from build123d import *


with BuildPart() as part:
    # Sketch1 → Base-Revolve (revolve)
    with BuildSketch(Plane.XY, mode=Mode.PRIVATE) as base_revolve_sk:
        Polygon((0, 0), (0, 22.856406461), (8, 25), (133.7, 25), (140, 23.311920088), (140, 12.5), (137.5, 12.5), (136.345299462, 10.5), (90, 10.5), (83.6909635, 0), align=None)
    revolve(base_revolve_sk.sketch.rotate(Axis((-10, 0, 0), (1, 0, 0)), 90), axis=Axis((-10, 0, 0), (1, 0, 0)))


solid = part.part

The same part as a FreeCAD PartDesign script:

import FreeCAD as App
import Part
import Sketcher

V = App.Vector
Q = App.Units.Quantity

doc = App.newDocument("Part")
body = doc.addObject("PartDesign::Body", "Body")

sketch1 = body.newObject("Sketcher::SketchObject", "Sketch")
sketch1.AttachmentSupport = (doc.getObject("XY_Plane"), [""])
sketch1.MapMode = "FlatFace"
sketch1.addGeometry(Part.LineSegment(V(0, 22.9, 0), V(0, 0, 0)), False)
sketch1.addGeometry(Part.LineSegment(V(0, 0, 0), V(83.7, 0, 0)), False)
sketch1.addGeometry(Part.LineSegment(V(83.7, 0, 0), V(90, 10.5, 0)), False)
sketch1.addGeometry(Part.LineSegment(V(90, 10.5, 0), V(136.3, 10.5, 0)), False)
sketch1.addGeometry(Part.LineSegment(V(136.3, 10.5, 0), V(137.5, 12.5, 0)), False)
sketch1.addGeometry(Part.LineSegment(V(137.5, 12.5, 0), V(140, 12.5, 0)), False)
sketch1.addGeometry(Part.LineSegment(V(140, 12.5, 0), V(140, 23.3, 0)), False)
sketch1.addGeometry(Part.LineSegment(V(140, 23.3, 0), V(133.7, 25, 0)), False)
sketch1.addGeometry(Part.LineSegment(V(133.7, 25, 0), V(8, 25, 0)), False)
sketch1.addGeometry(Part.LineSegment(V(8, 25, 0), V(0, 22.9, 0)), False)
sketch1.addConstraint(Sketcher.Constraint("Coincident", 0, 2, 1, 1))
sketch1.addConstraint(Sketcher.Constraint("Coincident", 1, 2, 2, 1))
sketch1.addConstraint(Sketcher.Constraint("Coincident", 2, 2, 3, 1))
sketch1.addConstraint(Sketcher.Constraint("Coincident", 3, 2, 4, 1))
sketch1.addConstraint(Sketcher.Constraint("Coincident", 4, 2, 5, 1))
sketch1.addConstraint(Sketcher.Constraint("Coincident", 5, 2, 6, 1))
sketch1.addConstraint(Sketcher.Constraint("Coincident", 6, 2, 7, 1))
sketch1.addConstraint(Sketcher.Constraint("Coincident", 7, 2, 8, 1))
sketch1.addConstraint(Sketcher.Constraint("Coincident", 8, 2, 9, 1))
sketch1.addConstraint(Sketcher.Constraint("Coincident", 9, 2, 0, 1))
sketch1.addConstraint(Sketcher.Constraint("Vertical", 0))
sketch1.addConstraint(Sketcher.Constraint("Horizontal", 1))
sketch1.addConstraint(Sketcher.Constraint("Horizontal", 3))
sketch1.addConstraint(Sketcher.Constraint("Horizontal", 5))
sketch1.addConstraint(Sketcher.Constraint("Vertical", 6))
sketch1.addConstraint(Sketcher.Constraint("Horizontal", 8))
sketch1.addConstraint(Sketcher.Constraint("Coincident", 0, 2, -1, 1))
sketch1.addConstraint(Sketcher.Constraint("Angle", 2, Q("59 deg")))
sketch1.addConstraint(Sketcher.Constraint("Angle", 4, Q("60 deg")))
sketch1.addConstraint(Sketcher.Constraint("Angle", 7, Q("165 deg")))
sketch1.addConstraint(Sketcher.Constraint("Angle", 9, Q("-165 deg")))
sketch1.addConstraint(Sketcher.Constraint("DistanceX", 5, 1, 5, 2, 2.5))
sketch1.addConstraint(Sketcher.Constraint("DistanceX", 8, 2, 8, 1, 125.7))
sketch1.addConstraint(Sketcher.Constraint("DistanceX", -1, 1, 2, 2, 90.0))
sketch1.addConstraint(Sketcher.Constraint("DistanceX", -1, 1, 5, 2, 140.0))
sketch1.addConstraint(Sketcher.Constraint("DistanceY", -1, 1, 7, 2, 25.0))
sketch1.addConstraint(Sketcher.Constraint("DistanceX", -1, 1, 8, 2, 8.0))
sketch1.addConstraint(Sketcher.Constraint("DistanceY", 3, 2, 4, 2, 2.0))
sketch1.addConstraint(Sketcher.Constraint("DistanceY", -1, 1, 2, 2, 10.5))
revolution = body.newObject("PartDesign::Revolution", "Revolution")
revolution.Profile = sketch1
revolution.ReferenceAxis = (sketch1, ["H_Axis"])
revolution.Angle = 360

doc.recompute()
